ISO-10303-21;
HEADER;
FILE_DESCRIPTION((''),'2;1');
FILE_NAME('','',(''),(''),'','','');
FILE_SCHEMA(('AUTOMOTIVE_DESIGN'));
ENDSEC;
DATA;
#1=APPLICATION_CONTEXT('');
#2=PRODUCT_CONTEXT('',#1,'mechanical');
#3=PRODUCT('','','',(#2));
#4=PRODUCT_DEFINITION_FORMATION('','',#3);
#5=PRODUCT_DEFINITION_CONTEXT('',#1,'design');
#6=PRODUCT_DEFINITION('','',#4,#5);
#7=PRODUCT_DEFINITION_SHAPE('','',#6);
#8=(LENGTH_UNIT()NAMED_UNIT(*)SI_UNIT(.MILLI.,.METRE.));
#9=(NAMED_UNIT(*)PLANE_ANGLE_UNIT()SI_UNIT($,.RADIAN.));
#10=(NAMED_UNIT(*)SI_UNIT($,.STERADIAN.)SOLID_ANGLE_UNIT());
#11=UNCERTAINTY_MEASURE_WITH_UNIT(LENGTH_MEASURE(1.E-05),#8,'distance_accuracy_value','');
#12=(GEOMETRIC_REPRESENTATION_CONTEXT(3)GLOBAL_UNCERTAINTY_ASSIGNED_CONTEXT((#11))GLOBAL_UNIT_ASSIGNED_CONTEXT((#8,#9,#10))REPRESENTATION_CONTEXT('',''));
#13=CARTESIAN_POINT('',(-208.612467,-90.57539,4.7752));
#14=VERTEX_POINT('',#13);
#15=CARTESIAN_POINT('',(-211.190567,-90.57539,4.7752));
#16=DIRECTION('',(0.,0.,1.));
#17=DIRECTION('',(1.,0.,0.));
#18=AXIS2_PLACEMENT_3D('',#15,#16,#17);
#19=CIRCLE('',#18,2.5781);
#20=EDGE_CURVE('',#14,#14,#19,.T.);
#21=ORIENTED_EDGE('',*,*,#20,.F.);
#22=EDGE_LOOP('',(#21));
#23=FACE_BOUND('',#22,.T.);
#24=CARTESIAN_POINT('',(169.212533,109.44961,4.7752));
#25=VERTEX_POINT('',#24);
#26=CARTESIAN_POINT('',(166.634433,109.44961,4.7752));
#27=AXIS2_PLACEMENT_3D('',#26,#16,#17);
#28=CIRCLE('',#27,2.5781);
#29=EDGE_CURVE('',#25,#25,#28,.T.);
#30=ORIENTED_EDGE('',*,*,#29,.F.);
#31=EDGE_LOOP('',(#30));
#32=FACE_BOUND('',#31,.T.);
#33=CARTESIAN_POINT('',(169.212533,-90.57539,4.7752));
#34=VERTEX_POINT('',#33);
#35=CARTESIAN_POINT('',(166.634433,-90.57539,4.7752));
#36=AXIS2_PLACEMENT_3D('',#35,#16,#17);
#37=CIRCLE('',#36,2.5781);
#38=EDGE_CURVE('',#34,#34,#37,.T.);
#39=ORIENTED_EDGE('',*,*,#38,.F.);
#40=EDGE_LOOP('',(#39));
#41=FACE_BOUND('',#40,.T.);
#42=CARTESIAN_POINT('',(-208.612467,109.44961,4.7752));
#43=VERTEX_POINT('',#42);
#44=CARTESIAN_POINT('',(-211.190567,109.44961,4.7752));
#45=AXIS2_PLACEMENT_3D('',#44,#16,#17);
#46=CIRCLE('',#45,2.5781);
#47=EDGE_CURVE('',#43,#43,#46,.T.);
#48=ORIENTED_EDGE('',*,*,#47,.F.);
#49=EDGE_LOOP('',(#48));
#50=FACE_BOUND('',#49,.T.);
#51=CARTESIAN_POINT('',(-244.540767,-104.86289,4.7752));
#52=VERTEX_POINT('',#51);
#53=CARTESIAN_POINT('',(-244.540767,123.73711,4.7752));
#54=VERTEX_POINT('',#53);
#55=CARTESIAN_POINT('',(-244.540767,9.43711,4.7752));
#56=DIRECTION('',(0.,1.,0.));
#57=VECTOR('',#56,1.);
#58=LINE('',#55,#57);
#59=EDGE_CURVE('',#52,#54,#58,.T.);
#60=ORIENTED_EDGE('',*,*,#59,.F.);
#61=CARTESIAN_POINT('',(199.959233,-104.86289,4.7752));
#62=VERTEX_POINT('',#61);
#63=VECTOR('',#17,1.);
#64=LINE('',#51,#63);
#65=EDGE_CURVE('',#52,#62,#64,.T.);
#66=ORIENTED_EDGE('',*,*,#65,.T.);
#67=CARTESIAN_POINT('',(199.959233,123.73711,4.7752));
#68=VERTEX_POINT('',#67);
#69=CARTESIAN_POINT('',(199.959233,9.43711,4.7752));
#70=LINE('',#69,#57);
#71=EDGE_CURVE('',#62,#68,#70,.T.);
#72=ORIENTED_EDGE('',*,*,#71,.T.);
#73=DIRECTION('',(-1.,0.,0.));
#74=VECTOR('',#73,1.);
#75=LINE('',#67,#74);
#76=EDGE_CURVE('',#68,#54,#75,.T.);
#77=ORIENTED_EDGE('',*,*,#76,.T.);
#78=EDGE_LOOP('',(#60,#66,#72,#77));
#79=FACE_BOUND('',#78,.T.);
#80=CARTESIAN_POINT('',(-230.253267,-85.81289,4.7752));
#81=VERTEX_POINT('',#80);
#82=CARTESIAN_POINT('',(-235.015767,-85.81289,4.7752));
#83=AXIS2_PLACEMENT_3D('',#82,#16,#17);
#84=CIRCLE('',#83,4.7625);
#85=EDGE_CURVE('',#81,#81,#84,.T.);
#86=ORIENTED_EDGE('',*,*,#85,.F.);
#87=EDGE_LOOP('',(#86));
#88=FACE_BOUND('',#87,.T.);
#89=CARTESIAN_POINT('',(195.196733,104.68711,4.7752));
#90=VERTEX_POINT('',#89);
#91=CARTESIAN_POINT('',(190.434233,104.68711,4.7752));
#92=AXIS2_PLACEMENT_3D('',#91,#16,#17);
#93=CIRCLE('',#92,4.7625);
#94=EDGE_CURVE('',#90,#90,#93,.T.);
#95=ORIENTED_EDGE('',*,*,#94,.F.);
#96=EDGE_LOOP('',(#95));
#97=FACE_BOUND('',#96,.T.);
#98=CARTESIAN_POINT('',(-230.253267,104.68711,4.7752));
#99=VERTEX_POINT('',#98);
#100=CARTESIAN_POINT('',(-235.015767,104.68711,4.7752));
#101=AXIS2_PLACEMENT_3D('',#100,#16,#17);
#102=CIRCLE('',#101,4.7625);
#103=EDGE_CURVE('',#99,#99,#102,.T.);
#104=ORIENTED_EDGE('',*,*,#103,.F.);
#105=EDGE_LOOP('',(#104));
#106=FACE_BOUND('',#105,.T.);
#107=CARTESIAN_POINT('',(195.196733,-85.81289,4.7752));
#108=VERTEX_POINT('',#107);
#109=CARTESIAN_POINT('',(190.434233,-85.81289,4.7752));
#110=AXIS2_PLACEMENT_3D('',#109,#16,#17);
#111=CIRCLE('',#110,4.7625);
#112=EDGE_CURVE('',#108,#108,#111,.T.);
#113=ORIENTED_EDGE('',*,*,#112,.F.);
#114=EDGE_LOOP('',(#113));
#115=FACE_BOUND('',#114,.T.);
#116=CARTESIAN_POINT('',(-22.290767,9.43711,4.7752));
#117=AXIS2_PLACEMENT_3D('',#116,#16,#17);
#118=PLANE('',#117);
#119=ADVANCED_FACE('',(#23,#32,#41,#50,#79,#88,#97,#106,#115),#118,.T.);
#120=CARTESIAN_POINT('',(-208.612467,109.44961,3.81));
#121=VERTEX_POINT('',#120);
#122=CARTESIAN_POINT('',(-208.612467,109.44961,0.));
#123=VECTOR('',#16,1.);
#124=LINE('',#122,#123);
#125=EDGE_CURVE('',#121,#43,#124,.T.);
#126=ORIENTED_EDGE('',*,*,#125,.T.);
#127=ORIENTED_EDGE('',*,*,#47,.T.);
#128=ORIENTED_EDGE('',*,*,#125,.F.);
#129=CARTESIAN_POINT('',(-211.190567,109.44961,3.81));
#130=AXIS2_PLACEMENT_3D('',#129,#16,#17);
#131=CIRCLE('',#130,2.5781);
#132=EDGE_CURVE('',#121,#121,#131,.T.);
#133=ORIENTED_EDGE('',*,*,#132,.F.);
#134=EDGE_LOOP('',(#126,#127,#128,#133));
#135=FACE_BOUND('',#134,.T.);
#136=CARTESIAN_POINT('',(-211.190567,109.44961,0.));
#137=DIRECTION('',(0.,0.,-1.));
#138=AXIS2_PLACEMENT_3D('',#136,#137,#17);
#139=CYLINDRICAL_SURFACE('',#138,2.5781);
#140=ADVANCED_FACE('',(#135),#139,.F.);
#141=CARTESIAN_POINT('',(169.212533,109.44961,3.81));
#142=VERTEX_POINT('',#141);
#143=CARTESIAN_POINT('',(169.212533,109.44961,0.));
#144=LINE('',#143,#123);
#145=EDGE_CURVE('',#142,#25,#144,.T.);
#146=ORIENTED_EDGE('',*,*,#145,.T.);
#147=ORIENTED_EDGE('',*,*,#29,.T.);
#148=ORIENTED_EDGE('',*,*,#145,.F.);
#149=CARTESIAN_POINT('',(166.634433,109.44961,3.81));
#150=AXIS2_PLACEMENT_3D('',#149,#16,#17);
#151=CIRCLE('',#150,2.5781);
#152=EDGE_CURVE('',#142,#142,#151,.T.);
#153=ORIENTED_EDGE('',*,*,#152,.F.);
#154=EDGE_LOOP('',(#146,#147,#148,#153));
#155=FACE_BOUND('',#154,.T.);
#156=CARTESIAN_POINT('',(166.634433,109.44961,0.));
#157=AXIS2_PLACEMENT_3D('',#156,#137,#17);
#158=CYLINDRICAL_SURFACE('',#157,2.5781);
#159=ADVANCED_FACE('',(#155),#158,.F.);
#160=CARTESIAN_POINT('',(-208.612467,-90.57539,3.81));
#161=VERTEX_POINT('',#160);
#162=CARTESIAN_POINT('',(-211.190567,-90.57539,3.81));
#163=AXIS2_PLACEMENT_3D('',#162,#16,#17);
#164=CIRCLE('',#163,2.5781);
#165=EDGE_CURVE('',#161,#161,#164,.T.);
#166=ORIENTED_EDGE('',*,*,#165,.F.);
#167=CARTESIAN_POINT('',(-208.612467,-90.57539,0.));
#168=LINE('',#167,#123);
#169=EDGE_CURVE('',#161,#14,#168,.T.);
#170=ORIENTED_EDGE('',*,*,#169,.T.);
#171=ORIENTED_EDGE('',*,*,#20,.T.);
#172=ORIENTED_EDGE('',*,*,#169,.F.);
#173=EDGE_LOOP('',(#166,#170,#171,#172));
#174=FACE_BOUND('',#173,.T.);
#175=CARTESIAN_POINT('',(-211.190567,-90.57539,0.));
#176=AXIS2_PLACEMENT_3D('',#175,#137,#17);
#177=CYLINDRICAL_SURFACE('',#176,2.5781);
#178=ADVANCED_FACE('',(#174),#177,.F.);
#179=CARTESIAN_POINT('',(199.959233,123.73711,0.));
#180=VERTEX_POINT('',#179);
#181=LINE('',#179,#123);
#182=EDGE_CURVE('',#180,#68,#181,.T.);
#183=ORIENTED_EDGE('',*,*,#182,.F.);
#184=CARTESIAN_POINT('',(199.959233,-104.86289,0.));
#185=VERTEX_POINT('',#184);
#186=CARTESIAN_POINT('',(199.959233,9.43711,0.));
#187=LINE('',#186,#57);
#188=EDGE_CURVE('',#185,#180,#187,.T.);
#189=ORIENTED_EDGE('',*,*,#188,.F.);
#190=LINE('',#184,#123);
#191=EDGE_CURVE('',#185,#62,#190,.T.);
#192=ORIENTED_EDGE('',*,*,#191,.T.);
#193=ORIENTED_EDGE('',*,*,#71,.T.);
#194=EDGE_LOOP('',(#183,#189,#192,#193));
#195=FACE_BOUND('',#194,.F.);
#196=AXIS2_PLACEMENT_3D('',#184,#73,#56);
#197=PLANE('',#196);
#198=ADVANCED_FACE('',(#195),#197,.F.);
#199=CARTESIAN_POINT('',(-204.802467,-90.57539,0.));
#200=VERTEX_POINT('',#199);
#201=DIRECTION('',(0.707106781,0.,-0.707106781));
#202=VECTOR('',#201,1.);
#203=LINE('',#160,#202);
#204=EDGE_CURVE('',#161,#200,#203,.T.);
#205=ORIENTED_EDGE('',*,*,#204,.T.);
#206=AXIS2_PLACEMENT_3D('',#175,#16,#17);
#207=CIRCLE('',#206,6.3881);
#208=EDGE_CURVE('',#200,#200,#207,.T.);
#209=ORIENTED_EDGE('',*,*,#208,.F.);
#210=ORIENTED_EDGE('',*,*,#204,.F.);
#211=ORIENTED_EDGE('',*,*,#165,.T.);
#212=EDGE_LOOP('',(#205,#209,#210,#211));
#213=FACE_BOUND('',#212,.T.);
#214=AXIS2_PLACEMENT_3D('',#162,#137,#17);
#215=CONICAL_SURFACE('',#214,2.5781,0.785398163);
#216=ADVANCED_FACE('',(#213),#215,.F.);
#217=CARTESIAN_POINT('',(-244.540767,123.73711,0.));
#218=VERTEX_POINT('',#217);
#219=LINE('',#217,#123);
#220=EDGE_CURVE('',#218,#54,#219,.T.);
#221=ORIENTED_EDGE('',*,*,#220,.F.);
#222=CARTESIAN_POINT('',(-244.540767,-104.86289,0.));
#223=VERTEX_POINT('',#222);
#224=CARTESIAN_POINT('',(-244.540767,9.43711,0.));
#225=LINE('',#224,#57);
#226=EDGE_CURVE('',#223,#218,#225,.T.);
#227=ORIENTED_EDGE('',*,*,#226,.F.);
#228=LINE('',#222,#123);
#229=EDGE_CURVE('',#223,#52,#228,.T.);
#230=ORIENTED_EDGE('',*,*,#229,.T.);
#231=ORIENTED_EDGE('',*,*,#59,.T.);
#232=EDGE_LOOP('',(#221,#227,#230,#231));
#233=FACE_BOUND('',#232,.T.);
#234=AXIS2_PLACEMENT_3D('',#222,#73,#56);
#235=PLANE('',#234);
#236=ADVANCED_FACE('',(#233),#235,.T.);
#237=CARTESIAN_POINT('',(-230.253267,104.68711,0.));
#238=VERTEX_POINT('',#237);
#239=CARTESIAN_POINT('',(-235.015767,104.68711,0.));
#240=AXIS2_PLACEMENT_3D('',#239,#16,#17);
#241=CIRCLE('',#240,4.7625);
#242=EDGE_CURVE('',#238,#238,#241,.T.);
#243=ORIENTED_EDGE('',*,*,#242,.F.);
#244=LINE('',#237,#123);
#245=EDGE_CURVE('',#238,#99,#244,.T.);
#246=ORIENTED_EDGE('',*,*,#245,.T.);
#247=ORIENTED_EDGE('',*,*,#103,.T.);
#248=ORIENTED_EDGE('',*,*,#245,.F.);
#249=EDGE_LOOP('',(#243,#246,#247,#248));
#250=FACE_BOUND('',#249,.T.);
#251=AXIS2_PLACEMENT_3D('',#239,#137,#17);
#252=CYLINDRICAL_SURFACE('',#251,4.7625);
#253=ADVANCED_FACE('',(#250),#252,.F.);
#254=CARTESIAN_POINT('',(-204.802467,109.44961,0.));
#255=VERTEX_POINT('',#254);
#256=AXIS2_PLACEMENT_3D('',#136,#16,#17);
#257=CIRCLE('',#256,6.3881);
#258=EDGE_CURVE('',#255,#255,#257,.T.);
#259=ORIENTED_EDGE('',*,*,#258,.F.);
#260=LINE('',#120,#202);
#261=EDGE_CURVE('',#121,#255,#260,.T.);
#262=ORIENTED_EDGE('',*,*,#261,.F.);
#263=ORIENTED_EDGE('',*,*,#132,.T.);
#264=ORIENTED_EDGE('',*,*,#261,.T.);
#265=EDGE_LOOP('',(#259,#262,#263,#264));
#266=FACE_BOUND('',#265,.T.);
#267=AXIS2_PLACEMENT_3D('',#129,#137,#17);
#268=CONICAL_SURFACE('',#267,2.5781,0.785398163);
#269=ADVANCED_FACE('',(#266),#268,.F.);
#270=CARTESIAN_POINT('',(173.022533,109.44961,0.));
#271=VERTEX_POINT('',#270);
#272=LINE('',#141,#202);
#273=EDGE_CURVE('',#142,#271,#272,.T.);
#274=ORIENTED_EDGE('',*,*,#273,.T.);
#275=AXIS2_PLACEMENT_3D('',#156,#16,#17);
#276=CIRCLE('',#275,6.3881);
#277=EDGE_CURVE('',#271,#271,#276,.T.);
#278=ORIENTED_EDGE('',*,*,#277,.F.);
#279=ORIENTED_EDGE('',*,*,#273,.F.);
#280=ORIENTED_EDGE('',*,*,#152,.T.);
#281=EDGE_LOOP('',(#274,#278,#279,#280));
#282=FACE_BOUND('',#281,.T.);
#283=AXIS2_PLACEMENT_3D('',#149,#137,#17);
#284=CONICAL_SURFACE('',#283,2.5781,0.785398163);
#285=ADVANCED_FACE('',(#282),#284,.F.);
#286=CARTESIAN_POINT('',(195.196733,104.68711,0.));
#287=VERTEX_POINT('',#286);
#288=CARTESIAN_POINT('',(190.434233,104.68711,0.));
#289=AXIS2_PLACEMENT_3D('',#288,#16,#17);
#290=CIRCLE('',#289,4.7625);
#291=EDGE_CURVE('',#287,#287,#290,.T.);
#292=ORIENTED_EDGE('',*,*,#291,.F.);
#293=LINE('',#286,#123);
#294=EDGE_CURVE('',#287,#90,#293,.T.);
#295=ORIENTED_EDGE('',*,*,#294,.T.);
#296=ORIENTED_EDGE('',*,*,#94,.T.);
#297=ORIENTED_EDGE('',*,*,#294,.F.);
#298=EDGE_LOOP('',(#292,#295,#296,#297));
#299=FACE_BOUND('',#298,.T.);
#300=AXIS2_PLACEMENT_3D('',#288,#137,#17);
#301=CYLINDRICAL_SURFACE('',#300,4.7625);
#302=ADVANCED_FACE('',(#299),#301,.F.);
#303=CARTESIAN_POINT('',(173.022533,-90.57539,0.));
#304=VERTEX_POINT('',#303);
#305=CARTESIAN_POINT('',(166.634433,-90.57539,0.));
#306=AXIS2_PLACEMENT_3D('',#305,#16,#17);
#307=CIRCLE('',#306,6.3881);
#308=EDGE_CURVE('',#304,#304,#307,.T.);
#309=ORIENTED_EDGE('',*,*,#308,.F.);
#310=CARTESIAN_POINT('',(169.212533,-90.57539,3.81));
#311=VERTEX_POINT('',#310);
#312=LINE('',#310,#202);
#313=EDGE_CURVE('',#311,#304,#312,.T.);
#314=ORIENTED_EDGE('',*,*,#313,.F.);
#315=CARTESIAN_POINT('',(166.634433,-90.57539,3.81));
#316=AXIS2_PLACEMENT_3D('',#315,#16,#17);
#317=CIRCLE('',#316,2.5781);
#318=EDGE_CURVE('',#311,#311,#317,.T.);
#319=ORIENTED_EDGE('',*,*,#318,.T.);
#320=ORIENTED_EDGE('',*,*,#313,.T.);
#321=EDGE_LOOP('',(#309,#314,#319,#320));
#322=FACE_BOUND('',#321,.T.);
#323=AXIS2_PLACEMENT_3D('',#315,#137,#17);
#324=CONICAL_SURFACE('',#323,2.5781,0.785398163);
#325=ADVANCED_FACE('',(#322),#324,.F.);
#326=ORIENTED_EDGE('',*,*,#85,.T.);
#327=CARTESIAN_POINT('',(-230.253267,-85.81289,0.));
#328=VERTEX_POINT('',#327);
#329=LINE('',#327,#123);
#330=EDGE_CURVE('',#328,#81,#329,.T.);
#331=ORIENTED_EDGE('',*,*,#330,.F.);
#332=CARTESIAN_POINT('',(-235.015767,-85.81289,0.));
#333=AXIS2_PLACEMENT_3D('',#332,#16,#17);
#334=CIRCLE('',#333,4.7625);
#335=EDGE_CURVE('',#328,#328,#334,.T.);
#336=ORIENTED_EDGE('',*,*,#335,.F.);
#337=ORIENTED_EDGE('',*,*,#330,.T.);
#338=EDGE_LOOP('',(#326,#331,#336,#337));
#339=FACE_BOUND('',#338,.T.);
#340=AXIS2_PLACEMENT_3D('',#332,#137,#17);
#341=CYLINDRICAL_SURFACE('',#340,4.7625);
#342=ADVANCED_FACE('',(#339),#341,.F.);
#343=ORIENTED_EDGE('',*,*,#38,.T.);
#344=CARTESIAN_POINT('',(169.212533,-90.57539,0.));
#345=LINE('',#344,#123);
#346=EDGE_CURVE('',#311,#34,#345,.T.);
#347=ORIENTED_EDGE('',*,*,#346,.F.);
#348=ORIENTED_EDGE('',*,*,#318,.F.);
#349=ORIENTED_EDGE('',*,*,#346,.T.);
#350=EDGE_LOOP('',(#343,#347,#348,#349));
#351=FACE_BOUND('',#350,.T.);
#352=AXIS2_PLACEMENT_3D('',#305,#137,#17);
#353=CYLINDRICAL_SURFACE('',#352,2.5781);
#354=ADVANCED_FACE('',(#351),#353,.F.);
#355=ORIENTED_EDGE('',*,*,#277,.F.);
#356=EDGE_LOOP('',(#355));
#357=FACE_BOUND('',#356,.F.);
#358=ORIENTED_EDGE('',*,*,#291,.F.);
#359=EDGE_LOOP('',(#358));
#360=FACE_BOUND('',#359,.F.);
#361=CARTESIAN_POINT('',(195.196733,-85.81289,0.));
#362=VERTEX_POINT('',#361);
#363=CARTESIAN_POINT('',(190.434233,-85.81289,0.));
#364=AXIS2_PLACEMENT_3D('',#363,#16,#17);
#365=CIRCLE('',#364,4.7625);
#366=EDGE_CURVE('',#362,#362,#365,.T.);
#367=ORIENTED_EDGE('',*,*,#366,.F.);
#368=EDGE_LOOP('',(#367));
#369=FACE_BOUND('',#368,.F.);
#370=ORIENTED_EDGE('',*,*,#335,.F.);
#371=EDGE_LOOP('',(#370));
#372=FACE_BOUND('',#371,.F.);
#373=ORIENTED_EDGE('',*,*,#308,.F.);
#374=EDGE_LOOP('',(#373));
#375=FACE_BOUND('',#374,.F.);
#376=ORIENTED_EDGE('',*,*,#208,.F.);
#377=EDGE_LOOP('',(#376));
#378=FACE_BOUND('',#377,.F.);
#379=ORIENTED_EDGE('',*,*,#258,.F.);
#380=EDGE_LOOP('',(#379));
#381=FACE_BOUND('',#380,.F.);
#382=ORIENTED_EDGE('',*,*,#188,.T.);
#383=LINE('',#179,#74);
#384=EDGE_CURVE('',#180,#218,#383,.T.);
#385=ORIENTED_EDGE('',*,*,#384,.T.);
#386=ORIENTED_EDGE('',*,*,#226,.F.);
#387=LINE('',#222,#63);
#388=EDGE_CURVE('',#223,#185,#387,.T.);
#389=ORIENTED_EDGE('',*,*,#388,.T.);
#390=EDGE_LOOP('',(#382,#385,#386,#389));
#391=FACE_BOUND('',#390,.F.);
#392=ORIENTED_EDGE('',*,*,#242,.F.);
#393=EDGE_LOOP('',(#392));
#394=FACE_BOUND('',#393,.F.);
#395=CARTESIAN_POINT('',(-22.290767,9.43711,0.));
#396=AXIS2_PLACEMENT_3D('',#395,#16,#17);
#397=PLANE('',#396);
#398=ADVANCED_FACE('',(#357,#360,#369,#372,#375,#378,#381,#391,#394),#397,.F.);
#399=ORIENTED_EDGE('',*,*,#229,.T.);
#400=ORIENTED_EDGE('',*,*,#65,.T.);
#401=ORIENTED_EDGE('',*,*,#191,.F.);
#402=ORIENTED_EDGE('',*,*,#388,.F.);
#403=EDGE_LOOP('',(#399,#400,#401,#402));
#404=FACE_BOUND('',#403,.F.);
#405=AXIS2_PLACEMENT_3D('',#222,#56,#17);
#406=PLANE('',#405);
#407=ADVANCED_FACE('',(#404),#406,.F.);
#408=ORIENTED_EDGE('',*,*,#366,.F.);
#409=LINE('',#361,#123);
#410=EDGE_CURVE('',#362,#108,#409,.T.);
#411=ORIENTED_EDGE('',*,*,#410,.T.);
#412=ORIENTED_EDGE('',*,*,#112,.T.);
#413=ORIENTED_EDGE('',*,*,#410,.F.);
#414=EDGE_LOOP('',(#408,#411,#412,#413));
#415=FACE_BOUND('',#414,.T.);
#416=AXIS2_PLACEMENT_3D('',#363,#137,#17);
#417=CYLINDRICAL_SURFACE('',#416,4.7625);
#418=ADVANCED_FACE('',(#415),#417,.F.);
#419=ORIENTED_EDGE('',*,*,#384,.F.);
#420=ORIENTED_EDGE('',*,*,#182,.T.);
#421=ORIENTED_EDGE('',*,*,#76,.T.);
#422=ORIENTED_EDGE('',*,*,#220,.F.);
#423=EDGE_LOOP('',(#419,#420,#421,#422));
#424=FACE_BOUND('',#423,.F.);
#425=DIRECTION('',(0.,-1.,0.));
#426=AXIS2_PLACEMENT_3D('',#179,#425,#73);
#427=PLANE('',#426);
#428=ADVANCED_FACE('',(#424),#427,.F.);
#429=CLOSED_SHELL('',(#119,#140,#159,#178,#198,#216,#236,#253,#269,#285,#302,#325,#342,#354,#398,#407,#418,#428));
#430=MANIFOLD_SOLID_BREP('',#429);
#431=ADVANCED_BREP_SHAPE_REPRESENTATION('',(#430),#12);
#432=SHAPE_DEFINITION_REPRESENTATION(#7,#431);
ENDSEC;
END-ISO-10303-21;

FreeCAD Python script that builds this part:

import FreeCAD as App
import Part
import Sketcher

V = App.Vector
Q = App.Units.Quantity


def edges_at(feature, points):
    """Names of the edges that pass closest to the given points."""
    edges = feature.Shape.Edges
    near = lambda p: min(range(len(edges)), key=lambda i: edges[i].distToShape(Part.Vertex(*p))[0])
    return sorted({f"Edge{near(p) + 1}" for p in points})

doc = App.newDocument("Part")
body = doc.addObject("PartDesign::Body", "Body")

sketch1 = body.newObject("Sketcher::SketchObject", "Sketch")
sketch1.AttachmentSupport = (doc.getObject("XY_Plane"), [""])
sketch1.MapMode = "FlatFace"
sketch1.addGeometry(Part.LineSegment(V(-244.540767, -104.86289, 0), V(199.959233, -104.86289, 0)), False)
sketch1.addGeometry(Part.LineSegment(V(199.959233, -104.86289, 0), V(199.959233, 123.73711, 0)), False)
sketch1.addGeometry(Part.LineSegment(V(199.959233, 123.73711, 0), V(-244.540767, 123.73711, 0)), False)
sketch1.addGeometry(Part.LineSegment(V(-244.540767, 123.73711, 0), V(-244.540767, -104.86289, 0)), False)
sketch1.addGeometry(Part.Circle(V(-235.015767, -85.81289, 0), V(0, 0, 1), 4.7625), False)
sketch1.addGeometry(Part.Circle(V(-211.190567, -90.57539, 0), V(0, 0, 1), 2.5781), False)
sketch1.addGeometry(Part.Circle(V(166.634433, -90.57539, 0), V(0, 0, 1), 2.5781), False)
sketch1.addGeometry(Part.Circle(V(190.434233, -85.81289, 0), V(0, 0, 1), 4.7625), False)
sketch1.addGeometry(Part.Circle(V(-235.015767, 104.68711, 0), V(0, 0, 1), 4.7625), False)
sketch1.addGeometry(Part.Circle(V(-211.190567, 109.44961, 0), V(0, 0, 1), 2.5781), False)
sketch1.addGeometry(Part.Circle(V(166.634433, 109.44961, 0), V(0, 0, 1), 2.5781), False)
sketch1.addGeometry(Part.Circle(V(190.434233, 104.68711, 0), V(0, 0, 1), 4.7625), False)
sketch1.addConstraint(Sketcher.Constraint("Coincident", 0, 2, 1, 1))
sketch1.addConstraint(Sketcher.Constraint("Coincident", 1, 2, 2, 1))
sketch1.addConstraint(Sketcher.Constraint("Coincident", 2, 2, 3, 1))
sketch1.addConstraint(Sketcher.Constraint("Coincident", 3, 2, 0, 1))
sketch1.addConstraint(Sketcher.Constraint("Horizontal", 0))
sketch1.addConstraint(Sketcher.Constraint("Vertical", 1))
sketch1.addConstraint(Sketcher.Constraint("Horizontal", 2))
sketch1.addConstraint(Sketcher.Constraint("Vertical", 3))
sketch1.addConstraint(Sketcher.Constraint("Equal", 5, 6))
sketch1.addConstraint(Sketcher.Constraint("Equal", 4, 7))
sketch1.addConstraint(Sketcher.Constraint("Equal", 7, 8))
sketch1.addConstraint(Sketcher.Constraint("Equal", 6, 9))
sketch1.addConstraint(Sketcher.Constraint("Equal", 9, 10))
sketch1.addConstraint(Sketcher.Constraint("Equal", 8, 11))
sketch1.addConstraint(Sketcher.Constraint("Horizontal", 5, 3, 6, 3))
sketch1.addConstraint(Sketcher.Constraint("Horizontal", 4, 3, 7, 3))
sketch1.addConstraint(Sketcher.Constraint("Horizontal", 9, 3, 10, 3))
sketch1.addConstraint(Sketcher.Constraint("Horizontal", 8, 3, 11, 3))
sketch1.addConstraint(Sketcher.Constraint("Vertical", 4, 3, 8, 3))
sketch1.addConstraint(Sketcher.Constraint("Vertical", 5, 3, 9, 3))
sketch1.addConstraint(Sketcher.Constraint("Vertical", 6, 3, 10, 3))
sketch1.addConstraint(Sketcher.Constraint("Vertical", 7, 3, 11, 3))
sketch1.addConstraint(Sketcher.Constraint("DistanceY", 1, 1, 1, 2, Q("9 in")))
sketch1.addConstraint(Sketcher.Constraint("Diameter", 4, Q("0.375 in")))
sketch1.addConstraint(Sketcher.Constraint("Diameter", 5, Q("0.203 in")))
sketch1.addConstraint(Sketcher.Constraint("DistanceX", 0, 1, 0, 2, Q("17.5 in")))
sketch1.addConstraint(Sketcher.Constraint("DistanceY", 4, 3, 8, 3, Q("7.5 in")))
sketch1.addConstraint(Sketcher.Constraint("DistanceX", 4, 3, 7, 3, Q("16.75 in")))
sketch1.addConstraint(Sketcher.Constraint("DistanceY", 0, 2, 7, 3, Q("0.75 in")))
sketch1.addConstraint(Sketcher.Constraint("DistanceX", 4, 3, 5, 3, Q("0.938 in")))
sketch1.addConstraint(Sketcher.Constraint("DistanceY", 5, 3, 4, 3, Q("0.1875 in")))
sketch1.addConstraint(Sketcher.Constraint("DistanceX", 5, 3, 6, 3, Q("14.875 in")))
sketch1.addConstraint(Sketcher.Constraint("DistanceY", 8, 3, 9, 3, Q("0.1875 in")))
sketch1.addConstraint(Sketcher.Constraint("DistanceX", 7, 3, 0, 2, Q("0.375 in")))
sketch1.addConstraint(Sketcher.Constraint("DistanceY", 4, 3, -1, 1, 85.81289))
sketch1.addConstraint(Sketcher.Constraint("DistanceX", 4, 3, -1, 1, 235.015767))
pad1 = body.newObject("PartDesign::Pad", "Pad")
pad1.Profile = sketch1
pad1.Length = Q("0.188 in")
doc.recompute()

chamfer = body.newObject("PartDesign::Chamfer", "Chamfer")
chamfer.Base = (pad1, edges_at(pad1, [
    (-213.769, -90.575, 0),
    (164.056, -90.575, 0),
    (164.056, 109.45, 0),
    (-213.769, 109.45, 0),
]))
chamfer.Size = Q("0.15 in")

doc.recompute()
